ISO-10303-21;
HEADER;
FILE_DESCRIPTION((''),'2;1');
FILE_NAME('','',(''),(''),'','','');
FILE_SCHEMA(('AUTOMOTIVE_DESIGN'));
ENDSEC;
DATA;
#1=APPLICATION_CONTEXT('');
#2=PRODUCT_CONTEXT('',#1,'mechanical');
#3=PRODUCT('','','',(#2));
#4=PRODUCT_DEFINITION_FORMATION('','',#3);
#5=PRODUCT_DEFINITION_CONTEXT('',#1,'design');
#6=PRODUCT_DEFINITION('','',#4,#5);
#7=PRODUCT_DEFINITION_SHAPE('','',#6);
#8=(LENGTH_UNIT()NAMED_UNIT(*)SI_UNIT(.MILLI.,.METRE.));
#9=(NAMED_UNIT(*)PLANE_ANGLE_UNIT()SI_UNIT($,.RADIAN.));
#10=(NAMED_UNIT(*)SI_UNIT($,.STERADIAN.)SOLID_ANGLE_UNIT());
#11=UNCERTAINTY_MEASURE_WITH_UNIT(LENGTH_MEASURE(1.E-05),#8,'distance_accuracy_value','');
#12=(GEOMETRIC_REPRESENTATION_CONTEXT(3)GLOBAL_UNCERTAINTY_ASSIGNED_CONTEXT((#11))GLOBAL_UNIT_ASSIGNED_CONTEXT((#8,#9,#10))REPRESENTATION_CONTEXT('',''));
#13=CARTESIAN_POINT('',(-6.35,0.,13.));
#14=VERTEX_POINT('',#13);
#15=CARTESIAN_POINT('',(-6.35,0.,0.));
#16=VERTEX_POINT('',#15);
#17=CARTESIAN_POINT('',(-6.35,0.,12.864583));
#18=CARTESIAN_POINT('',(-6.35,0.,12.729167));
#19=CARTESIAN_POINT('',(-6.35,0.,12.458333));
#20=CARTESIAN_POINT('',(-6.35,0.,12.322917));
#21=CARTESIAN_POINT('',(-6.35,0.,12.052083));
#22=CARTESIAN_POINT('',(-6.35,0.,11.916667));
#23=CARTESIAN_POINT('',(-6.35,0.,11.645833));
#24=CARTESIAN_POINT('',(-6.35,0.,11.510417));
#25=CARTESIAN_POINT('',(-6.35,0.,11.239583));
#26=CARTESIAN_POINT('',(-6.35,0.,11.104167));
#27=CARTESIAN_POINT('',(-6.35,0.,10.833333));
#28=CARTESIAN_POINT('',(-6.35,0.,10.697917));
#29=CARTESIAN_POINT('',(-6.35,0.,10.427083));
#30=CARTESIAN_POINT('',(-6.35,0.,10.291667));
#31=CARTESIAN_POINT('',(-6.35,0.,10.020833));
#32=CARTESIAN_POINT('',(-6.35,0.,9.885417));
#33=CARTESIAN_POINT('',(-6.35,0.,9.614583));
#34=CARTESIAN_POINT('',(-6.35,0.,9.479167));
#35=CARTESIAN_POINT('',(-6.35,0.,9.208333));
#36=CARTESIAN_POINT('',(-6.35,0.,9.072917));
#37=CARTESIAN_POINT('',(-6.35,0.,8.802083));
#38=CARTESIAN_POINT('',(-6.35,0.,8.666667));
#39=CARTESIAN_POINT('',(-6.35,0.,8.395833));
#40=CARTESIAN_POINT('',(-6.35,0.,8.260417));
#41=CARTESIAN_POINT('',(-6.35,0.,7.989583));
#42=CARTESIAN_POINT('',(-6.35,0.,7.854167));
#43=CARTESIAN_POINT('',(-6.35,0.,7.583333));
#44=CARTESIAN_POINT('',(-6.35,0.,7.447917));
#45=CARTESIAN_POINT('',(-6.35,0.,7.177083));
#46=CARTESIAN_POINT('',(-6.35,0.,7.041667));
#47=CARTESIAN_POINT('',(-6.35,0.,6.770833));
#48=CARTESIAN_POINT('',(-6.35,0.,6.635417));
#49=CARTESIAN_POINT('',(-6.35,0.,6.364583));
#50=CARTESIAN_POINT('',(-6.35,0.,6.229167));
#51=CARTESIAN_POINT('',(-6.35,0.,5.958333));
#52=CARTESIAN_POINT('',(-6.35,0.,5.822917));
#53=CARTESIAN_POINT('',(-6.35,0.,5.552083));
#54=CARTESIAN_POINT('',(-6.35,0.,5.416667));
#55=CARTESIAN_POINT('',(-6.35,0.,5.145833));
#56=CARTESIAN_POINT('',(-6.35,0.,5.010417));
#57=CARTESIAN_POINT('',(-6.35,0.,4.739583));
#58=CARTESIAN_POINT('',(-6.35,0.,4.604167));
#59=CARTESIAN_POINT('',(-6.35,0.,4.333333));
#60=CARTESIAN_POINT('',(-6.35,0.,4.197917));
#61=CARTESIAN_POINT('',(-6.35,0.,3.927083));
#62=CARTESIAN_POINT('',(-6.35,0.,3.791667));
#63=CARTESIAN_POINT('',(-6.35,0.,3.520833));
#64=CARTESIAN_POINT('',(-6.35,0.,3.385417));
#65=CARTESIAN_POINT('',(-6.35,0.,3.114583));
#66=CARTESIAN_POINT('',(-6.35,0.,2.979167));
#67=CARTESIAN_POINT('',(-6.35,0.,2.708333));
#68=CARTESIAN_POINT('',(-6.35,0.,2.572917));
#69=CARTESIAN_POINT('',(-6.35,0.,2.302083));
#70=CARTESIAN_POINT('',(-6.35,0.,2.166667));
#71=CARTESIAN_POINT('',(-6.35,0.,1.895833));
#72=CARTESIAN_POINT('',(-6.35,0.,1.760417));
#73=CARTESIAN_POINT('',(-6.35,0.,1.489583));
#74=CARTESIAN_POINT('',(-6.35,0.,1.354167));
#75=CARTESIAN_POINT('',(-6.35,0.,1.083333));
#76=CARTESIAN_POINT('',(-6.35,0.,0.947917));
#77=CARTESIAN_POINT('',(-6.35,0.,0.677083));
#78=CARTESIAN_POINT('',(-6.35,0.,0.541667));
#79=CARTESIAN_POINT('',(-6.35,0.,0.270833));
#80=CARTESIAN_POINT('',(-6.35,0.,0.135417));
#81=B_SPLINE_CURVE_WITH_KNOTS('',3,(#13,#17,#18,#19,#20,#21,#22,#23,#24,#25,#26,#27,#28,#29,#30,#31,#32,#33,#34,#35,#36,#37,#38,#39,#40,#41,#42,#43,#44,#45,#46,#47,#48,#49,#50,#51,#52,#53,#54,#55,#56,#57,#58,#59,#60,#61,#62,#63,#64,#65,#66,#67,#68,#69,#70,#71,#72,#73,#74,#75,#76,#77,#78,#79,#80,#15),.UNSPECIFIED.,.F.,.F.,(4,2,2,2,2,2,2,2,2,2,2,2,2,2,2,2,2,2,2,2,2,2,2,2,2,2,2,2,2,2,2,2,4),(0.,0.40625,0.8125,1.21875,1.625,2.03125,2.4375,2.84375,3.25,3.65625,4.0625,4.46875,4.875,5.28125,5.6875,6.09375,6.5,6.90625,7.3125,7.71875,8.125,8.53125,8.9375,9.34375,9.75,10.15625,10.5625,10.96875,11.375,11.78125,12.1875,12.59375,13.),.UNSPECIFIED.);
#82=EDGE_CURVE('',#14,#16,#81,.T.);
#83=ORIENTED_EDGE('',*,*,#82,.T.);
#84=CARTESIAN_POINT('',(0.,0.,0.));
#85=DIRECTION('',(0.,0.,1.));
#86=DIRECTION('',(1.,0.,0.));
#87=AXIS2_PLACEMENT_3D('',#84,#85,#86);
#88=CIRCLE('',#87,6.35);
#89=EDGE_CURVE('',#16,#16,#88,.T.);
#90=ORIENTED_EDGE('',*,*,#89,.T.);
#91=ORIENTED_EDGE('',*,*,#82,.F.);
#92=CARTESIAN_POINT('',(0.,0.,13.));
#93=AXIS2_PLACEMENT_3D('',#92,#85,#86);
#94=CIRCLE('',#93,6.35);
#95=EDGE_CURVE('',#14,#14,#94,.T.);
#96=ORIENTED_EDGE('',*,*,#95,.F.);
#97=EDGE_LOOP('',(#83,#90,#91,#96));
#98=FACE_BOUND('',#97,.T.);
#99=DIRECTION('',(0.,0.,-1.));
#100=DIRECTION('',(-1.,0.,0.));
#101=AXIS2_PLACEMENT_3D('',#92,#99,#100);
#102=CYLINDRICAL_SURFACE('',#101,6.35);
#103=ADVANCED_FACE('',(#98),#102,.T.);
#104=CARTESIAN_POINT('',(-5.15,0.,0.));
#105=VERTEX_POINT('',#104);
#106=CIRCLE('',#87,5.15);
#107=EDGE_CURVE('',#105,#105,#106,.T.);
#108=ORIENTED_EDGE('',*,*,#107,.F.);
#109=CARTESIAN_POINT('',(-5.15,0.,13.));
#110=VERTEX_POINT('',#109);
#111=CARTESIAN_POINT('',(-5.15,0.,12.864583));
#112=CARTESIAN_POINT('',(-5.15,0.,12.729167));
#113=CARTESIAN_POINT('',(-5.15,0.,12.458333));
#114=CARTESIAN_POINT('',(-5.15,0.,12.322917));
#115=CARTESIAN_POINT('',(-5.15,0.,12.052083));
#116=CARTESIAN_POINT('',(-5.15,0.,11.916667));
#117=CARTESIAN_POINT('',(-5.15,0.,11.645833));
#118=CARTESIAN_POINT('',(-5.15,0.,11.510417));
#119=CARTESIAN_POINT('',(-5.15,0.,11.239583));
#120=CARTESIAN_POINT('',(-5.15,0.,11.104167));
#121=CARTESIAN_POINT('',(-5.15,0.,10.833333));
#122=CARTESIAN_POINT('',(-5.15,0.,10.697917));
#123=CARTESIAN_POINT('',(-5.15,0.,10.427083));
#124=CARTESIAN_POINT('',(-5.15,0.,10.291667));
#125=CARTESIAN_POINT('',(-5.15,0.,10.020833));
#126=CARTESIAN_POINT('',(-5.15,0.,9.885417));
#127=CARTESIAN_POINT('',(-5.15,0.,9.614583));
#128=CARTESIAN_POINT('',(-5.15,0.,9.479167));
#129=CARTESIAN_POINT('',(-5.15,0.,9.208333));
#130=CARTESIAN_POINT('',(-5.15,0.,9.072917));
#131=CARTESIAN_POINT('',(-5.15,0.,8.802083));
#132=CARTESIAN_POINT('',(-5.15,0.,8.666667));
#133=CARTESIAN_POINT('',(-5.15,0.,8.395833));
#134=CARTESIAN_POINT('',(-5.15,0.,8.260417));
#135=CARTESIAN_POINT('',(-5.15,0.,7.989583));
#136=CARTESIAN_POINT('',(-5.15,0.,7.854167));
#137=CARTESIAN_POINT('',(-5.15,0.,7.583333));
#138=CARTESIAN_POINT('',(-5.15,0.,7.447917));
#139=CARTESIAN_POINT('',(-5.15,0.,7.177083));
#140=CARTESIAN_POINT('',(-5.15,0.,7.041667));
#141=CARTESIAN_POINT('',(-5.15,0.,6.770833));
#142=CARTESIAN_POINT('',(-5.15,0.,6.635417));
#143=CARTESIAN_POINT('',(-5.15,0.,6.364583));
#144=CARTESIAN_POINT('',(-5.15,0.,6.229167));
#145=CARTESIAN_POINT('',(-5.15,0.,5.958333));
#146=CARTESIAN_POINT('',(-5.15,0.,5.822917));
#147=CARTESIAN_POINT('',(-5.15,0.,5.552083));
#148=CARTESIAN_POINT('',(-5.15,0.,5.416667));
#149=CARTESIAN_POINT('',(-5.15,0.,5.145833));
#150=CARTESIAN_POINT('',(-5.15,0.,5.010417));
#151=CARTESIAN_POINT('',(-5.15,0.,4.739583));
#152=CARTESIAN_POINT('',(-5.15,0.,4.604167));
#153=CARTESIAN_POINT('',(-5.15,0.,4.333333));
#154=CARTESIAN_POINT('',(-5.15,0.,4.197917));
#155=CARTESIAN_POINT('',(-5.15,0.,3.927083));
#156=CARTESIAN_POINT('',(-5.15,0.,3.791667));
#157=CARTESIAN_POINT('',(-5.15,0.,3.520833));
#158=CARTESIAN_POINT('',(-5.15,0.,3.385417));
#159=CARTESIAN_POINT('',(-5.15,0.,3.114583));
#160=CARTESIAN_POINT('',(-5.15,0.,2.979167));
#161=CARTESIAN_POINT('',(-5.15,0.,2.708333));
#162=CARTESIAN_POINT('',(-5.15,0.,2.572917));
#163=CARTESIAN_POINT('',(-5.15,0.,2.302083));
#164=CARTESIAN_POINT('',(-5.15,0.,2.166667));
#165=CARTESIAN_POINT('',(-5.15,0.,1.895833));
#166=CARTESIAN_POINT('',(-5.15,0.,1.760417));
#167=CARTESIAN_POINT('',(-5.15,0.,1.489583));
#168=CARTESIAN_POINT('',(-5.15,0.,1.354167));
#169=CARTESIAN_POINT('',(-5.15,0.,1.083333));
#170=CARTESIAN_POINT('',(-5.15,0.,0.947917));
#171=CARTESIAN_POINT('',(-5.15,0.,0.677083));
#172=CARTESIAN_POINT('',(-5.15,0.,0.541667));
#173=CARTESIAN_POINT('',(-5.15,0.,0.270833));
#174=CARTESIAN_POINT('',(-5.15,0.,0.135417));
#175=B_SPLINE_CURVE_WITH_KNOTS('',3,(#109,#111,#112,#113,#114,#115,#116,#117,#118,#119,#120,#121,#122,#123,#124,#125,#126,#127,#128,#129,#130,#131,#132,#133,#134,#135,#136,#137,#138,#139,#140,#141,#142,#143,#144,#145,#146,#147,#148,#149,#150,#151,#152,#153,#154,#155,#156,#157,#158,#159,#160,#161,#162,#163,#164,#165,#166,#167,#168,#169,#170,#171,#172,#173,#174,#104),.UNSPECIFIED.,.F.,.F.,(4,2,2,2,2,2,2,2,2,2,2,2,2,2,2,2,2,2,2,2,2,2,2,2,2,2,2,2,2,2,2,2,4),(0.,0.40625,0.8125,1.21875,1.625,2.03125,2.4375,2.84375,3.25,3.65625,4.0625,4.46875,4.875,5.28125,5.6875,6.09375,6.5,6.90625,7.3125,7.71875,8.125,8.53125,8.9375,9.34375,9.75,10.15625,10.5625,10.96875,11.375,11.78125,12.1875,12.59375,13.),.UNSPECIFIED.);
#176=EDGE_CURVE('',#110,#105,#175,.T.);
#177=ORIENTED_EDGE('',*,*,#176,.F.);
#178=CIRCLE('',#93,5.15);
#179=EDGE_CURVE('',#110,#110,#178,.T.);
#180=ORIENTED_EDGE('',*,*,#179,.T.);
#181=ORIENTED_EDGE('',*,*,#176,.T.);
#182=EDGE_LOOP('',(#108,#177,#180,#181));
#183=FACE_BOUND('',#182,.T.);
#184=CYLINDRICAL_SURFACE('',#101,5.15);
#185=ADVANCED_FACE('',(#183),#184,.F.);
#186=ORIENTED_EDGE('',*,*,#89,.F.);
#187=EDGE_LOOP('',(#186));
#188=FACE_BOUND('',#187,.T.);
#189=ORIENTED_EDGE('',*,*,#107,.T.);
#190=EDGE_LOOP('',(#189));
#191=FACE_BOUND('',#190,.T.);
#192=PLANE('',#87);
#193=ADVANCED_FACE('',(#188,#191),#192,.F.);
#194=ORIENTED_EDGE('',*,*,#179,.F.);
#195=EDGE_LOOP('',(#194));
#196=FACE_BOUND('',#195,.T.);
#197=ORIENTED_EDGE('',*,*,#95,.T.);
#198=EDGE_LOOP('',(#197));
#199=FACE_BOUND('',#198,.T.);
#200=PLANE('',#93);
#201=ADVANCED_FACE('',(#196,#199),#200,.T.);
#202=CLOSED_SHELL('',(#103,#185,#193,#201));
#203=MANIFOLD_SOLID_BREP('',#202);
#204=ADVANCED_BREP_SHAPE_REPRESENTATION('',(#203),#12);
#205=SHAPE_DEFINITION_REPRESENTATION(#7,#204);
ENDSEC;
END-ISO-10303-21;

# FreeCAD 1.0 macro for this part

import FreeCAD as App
import Part
import Sketcher

V = App.Vector
Q = App.Units.Quantity

doc = App.newDocument("Part")
params = doc.addObject("Spreadsheet::Sheet", "Params")
for row, (alias, value) in enumerate([
    ("sketch1_diameter", "12.7 mm"),
    ("sketch1_diameter2", "10.3 mm"),
    ("pad1_length", "13 mm"),
], start=1):
    params.set(f"A{row}", alias)
    params.set(f"B{row}", "=" + value)
    params.setAlias(f"B{row}", alias)

body = doc.addObject("PartDesign::Body", "Body")

# Sketch on XY plane
sketch1 = body.newObject("Sketcher::SketchObject", "Sketch")
sketch1.AttachmentSupport = (doc.getObject("XY_Plane"), [""])
sketch1.MapMode = "FlatFace"
sketch1.addGeometry([
    Part.Circle(V(0, 0, 0), V(0, 0, 1), 6),
    Part.Circle(V(0, 0, 0), V(0, 0, 1), 5),
], False)
sketch1.addConstraint([
    Sketcher.Constraint("Coincident", 0, 3, -1, 1),
    Sketcher.Constraint("Coincident", 1, 3, -1, 1),
    Sketcher.Constraint("Diameter", 0, Q("12.7 mm")),
    Sketcher.Constraint("Diameter", 1, Q("10.3 mm")),
])
sketch1.setExpression("Constraints[2]", "Params.sketch1_diameter")
sketch1.setExpression("Constraints[3]", "Params.sketch1_diameter2")
pad1 = body.newObject("PartDesign::Pad", "Pad")
pad1.Profile = sketch1
pad1.setExpression("Length", "Params.pad1_length")

doc.recompute()
